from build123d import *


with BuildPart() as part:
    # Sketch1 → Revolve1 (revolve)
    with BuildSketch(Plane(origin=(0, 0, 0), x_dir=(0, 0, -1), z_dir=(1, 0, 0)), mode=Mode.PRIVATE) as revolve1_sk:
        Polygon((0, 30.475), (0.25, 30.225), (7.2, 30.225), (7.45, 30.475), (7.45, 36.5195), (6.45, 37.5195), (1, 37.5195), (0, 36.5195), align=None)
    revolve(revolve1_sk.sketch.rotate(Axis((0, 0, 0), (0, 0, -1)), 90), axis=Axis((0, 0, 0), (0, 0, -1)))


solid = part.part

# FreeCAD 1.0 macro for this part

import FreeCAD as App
import Part
import Sketcher
from FreeCAD import Vector

doc = App.newDocument("Part")
params = doc.addObject("Spreadsheet::Sheet", "Params")
for row, (alias, value) in enumerate([
    ("sketch1_height", "6.95 mm"),
    ("sketch1_height2", "5.45 mm"),
    ("revolution_angle", "360 deg"),
], start=1):
    params.set(f"A{row}", alias)
    params.set(f"B{row}", "=" + value)
    params.setAlias(f"B{row}", alias)

body = doc.addObject("PartDesign::Body", "Body")

# Sketch on YZ plane
sketch1 = doc.addObject("Sketcher::SketchObject", "Sketch")
body.addObject(sketch1)
sketch1.AttachmentSupport = (doc.YZ_Plane, [""])
sketch1.MapMode = "FlatFace"
sketch1.addGeometry([
    Part.LineSegment(Vector(30.48, 0, 0), Vector(30.23, -0.25, 0)),  # 0
    Part.LineSegment(Vector(30.23, -0.25, 0), Vector(30.23, -7.2, 0)),  # 1
    Part.LineSegment(Vector(30.23, -7.2, 0), Vector(30.48, -7.45, 0)),  # 2
    Part.LineSegment(Vector(30.48, -7.45, 0), Vector(36.52, -7.45, 0)),  # 3
    Part.LineSegment(Vector(36.52, -7.45, 0), Vector(37.52, -6.45, 0)),  # 4
    Part.LineSegment(Vector(37.52, -6.45, 0), Vector(37.52, -1, 0)),  # 5
    Part.LineSegment(Vector(37.52, -1, 0), Vector(36.52, 0, 0)),  # 6
    Part.LineSegment(Vector(36.52, 0, 0), Vector(30.48, 0, 0)),  # 7
], False)
sketch1.addConstraint([
    Sketcher.Constraint("Coincident", 0, 2, 1, 1),
    Sketcher.Constraint("Coincident", 1, 2, 2, 1),
    Sketcher.Constraint("Coincident", 2, 2, 3, 1),
    Sketcher.Constraint("Coincident", 3, 2, 4, 1),
    Sketcher.Constraint("Coincident", 4, 2, 5, 1),
    Sketcher.Constraint("Coincident", 5, 2, 6, 1),
    Sketcher.Constraint("Coincident", 6, 2, 7, 1),
    Sketcher.Constraint("Coincident", 7, 2, 0, 1),
    Sketcher.Constraint("Vertical", 1),
    Sketcher.Constraint("Horizontal", 3),
    Sketcher.Constraint("Vertical", 5),
    Sketcher.Constraint("Horizontal", 7),
    Sketcher.Constraint("PointOnObject", 6, 2, -1),
    Sketcher.Constraint("Perpendicular", 0, 2),
    Sketcher.Constraint("Perpendicular", 2, 4),
    Sketcher.Constraint("Perpendicular", 4, 6),
    Sketcher.Constraint("Vertical", 3, 2, 6, 2),
    Sketcher.Constraint("Vertical", 2, 2, 7, 2),
    Sketcher.Constraint("Equal", 0, 2),
    Sketcher.Constraint("DistanceY", 5, 2, -1, 1, 1.0),
    Sketcher.Constraint("DistanceY", 1, 2, 1, 1, 6.95),
    Sketcher.Constraint("DistanceY", 5, 1, 5, 2, 5.45),
    Sketcher.Constraint("DistanceX", 3, 1, 3, 2, 6.0445),
    Sketcher.Constraint("DistanceX", -1, 1, 0, 2, 30.225),
])
sketch1.setExpression("Constraints[20]", "Params.sketch1_height")
sketch1.setExpression("Constraints[21]", "Params.sketch1_height2")
revolution = doc.addObject("PartDesign::Revolution", "Revolution")
body.addObject(revolution)
revolution.Profile = sketch1
revolution.ReferenceAxis = (sketch1, ["V_Axis"])
revolution.setExpression("Angle", "Params.revolution_angle")

doc.recompute()
